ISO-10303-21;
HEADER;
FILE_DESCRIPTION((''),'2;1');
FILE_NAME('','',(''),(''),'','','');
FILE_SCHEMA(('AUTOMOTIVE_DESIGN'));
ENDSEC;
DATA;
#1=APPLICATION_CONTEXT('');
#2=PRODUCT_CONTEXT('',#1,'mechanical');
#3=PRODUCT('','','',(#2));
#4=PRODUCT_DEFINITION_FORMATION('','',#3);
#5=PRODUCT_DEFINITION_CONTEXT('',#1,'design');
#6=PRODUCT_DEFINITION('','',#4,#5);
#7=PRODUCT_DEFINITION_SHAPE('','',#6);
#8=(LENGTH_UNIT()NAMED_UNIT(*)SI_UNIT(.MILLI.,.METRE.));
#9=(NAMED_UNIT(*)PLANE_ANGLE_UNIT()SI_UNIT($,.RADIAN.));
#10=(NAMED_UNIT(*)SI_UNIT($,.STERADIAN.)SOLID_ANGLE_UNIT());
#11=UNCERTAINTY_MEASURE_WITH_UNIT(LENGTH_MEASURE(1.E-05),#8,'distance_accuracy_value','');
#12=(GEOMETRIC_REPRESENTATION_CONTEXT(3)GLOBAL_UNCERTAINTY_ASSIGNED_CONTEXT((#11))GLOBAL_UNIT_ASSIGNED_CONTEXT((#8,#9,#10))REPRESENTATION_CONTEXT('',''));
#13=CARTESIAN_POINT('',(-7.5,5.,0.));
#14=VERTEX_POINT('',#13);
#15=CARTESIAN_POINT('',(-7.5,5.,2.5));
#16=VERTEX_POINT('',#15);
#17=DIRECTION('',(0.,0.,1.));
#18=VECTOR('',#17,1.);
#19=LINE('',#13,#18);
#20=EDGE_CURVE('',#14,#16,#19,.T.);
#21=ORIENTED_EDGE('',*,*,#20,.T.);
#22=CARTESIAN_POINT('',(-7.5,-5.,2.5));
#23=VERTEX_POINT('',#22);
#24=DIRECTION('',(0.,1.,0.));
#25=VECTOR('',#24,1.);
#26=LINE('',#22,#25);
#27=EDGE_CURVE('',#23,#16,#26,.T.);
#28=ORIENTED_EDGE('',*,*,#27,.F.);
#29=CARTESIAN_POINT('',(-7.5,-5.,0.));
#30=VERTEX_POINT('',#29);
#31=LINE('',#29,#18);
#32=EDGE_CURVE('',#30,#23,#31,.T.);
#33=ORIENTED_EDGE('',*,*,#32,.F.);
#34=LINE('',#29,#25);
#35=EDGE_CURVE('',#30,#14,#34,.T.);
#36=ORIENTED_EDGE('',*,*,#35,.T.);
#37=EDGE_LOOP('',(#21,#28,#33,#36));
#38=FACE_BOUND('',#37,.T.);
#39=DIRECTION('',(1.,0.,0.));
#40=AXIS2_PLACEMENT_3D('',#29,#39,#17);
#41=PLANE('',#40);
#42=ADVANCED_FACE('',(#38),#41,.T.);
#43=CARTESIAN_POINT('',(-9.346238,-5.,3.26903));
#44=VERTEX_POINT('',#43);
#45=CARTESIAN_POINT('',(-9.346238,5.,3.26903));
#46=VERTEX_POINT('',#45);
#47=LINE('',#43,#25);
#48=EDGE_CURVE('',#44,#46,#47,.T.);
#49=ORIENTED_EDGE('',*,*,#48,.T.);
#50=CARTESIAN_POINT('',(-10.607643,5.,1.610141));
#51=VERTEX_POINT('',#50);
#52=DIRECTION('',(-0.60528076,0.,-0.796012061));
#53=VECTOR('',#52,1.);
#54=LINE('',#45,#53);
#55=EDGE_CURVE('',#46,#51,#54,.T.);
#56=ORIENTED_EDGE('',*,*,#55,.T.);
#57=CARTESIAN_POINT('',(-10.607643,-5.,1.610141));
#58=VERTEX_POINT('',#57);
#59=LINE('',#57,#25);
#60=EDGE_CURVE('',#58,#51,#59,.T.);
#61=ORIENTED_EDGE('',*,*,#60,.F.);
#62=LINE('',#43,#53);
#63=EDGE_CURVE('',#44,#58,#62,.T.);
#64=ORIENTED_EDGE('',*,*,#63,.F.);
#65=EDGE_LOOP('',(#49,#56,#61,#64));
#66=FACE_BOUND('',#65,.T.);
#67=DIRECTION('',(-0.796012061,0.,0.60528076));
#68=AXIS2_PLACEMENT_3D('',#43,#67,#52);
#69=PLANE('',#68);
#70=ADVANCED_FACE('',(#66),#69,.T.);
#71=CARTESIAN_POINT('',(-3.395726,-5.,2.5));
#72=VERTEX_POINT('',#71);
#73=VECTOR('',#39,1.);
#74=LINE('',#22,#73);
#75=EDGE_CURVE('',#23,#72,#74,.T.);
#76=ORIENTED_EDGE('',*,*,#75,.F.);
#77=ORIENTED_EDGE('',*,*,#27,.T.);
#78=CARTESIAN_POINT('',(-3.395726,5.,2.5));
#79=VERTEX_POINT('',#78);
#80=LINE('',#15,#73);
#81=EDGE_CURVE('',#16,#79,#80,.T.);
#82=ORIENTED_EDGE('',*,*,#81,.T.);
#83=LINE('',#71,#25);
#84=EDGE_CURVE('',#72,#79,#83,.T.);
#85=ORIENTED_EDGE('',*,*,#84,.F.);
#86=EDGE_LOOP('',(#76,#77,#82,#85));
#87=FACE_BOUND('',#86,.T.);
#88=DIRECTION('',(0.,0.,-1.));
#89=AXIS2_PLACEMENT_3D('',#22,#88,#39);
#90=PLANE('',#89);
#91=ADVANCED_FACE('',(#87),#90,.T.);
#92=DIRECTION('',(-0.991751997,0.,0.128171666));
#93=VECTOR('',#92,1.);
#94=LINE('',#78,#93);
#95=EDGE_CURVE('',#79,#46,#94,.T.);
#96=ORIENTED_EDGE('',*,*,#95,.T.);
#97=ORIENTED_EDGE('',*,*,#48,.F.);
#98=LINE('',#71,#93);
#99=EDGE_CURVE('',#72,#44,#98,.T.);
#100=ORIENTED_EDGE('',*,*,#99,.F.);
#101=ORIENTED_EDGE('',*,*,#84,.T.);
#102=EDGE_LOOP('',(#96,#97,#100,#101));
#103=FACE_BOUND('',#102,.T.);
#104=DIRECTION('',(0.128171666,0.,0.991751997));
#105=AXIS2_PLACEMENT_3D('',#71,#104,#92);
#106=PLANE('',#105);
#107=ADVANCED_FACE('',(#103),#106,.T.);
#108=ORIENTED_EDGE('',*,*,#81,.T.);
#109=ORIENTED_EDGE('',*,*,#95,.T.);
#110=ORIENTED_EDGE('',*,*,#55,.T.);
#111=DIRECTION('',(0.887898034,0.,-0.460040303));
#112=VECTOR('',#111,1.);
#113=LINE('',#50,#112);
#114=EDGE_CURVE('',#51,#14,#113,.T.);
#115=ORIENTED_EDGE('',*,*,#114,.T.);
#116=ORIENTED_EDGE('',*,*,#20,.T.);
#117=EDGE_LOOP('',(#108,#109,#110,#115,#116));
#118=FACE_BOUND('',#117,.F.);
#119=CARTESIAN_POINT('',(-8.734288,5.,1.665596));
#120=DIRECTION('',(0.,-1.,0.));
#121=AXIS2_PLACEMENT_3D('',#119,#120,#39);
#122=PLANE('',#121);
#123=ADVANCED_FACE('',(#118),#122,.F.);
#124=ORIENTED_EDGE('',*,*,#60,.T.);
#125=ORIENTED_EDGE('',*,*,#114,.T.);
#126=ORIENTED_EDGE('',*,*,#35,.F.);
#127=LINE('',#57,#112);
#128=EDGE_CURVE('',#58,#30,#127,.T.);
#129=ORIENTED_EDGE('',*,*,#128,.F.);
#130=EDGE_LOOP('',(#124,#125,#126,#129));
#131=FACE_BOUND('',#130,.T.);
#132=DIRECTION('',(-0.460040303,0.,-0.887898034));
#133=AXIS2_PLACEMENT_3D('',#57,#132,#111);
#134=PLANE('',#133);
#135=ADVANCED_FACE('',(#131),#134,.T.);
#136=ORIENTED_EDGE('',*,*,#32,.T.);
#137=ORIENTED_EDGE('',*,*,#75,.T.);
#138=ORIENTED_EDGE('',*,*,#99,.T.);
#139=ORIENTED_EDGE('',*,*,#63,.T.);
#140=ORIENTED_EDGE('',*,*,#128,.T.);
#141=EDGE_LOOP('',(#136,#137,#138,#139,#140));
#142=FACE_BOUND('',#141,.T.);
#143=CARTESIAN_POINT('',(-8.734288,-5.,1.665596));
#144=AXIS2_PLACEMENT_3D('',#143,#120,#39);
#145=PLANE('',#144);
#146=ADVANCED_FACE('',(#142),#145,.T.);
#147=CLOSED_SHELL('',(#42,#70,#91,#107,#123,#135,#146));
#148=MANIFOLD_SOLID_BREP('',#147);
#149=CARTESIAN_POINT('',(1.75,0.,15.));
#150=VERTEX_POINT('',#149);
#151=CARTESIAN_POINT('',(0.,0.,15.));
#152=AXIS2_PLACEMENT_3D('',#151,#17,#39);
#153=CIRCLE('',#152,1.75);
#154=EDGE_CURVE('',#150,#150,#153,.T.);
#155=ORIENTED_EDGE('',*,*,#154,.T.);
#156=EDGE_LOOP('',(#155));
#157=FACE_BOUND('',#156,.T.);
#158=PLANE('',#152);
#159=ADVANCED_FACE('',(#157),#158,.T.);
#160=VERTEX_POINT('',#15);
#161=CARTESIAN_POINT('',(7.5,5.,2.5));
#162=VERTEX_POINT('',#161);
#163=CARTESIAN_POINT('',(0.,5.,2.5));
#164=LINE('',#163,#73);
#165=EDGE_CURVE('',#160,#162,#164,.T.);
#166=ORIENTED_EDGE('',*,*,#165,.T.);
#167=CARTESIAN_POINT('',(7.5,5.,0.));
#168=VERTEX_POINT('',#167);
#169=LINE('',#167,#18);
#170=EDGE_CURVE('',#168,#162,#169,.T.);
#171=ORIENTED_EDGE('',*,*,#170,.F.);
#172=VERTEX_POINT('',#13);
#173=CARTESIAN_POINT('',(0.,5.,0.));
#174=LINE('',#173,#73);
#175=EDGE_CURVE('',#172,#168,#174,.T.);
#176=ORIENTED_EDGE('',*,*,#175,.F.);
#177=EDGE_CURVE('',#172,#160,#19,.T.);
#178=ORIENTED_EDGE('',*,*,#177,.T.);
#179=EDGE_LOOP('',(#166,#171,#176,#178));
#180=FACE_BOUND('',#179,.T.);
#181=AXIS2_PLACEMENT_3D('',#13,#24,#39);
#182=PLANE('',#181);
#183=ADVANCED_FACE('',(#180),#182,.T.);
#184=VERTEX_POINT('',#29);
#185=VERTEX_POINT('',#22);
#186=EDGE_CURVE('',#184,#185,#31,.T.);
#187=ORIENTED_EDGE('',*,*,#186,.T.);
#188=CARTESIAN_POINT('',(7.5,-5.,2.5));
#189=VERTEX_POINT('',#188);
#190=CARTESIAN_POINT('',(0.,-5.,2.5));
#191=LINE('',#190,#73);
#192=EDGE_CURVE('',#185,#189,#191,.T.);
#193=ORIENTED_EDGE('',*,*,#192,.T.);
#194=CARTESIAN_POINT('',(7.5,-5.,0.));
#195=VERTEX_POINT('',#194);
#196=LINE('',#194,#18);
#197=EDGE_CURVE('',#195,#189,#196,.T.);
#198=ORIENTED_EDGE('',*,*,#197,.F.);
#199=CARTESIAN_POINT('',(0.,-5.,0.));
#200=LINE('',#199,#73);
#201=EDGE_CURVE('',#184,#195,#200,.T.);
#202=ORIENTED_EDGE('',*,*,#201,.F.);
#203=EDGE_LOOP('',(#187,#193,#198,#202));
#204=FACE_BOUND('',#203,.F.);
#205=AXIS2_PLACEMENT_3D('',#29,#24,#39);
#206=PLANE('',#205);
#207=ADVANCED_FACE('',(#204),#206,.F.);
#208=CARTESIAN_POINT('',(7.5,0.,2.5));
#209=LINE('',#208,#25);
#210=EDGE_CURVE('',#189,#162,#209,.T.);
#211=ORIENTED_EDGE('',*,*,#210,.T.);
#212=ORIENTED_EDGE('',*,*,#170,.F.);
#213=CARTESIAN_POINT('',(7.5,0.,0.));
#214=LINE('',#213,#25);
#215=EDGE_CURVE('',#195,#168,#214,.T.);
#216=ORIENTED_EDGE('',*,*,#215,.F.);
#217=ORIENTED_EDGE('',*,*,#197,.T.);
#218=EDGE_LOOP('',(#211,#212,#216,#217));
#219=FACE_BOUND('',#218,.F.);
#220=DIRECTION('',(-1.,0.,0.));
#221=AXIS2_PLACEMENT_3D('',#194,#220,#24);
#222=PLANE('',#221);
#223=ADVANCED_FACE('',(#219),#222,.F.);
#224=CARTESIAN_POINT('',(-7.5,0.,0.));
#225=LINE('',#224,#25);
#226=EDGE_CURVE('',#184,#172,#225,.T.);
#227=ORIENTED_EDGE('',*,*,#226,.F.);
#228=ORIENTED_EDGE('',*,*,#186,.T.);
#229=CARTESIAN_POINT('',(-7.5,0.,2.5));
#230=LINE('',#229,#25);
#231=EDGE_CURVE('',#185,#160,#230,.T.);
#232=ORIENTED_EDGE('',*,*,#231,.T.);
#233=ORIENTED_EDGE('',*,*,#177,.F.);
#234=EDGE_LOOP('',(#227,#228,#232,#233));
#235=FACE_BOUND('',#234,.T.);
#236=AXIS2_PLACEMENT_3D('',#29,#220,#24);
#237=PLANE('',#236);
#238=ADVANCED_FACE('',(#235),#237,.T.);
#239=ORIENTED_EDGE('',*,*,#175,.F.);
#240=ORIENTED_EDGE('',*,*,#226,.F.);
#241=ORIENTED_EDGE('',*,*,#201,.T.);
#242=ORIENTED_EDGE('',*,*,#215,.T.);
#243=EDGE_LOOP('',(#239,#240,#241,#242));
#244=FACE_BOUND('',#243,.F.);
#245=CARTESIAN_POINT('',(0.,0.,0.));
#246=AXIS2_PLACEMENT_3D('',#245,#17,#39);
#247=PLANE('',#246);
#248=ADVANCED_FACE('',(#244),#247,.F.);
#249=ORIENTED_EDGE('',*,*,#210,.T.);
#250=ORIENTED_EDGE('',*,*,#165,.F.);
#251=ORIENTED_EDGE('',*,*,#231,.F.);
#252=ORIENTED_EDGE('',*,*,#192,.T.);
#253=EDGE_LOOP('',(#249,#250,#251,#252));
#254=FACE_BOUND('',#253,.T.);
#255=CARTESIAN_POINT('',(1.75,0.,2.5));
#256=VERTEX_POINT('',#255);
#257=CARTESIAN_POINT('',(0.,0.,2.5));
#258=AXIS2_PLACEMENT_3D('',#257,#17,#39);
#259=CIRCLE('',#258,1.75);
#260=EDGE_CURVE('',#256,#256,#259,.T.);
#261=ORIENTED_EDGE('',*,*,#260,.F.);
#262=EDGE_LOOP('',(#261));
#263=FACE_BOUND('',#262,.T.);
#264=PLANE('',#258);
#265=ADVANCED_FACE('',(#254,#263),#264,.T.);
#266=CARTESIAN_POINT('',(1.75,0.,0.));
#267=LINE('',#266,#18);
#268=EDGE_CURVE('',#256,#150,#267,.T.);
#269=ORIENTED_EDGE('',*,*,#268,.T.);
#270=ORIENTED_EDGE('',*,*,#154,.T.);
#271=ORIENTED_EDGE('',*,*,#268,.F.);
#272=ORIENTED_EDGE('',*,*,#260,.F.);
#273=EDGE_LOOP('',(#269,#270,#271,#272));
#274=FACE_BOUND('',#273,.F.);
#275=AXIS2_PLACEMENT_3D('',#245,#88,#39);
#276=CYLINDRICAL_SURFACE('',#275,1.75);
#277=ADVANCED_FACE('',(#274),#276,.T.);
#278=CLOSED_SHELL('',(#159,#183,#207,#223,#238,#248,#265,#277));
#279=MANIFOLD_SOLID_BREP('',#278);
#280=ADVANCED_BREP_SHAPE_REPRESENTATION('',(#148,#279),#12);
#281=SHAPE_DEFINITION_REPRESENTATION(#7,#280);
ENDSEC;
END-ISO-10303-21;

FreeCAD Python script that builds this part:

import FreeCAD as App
import Part
import Sketcher
from FreeCAD import Vector


def add_polygon(sketch, points):
    """Adds a closed chain of lines whose ends are joined by coincident constraints."""
    first, n = sketch.GeometryCount, len(points)
    for a, b in zip(points, points[1:] + points[:1]):
        sketch.addGeometry(Part.LineSegment(App.Vector(*a, 0), App.Vector(*b, 0)), False)
    for i in range(n):
        sketch.addConstraint(Sketcher.Constraint("Coincident", first + i, 2, first + (i + 1) % n, 1))

doc = App.newDocument("Part")
body = doc.addObject("PartDesign::Body", "Body")

sketch1 = body.newObject("Sketcher::SketchObject", "Sketch")
sketch1.AttachmentSupport = (doc.getObject("XY_Plane"), [""])
sketch1.MapMode = "FlatFace"
sketch1.addGeometry(Part.Circle(Vector(0, 0, 0), Vector(0, 0, 1), 1.75), False)
sketch1.addConstraint([
    Sketcher.Constraint("Coincident", 0, 3, -1, 1),
    Sketcher.Constraint("Diameter", 0, 3.5),
])
pad1 = body.newObject("PartDesign::Pad", "Pad")
pad1.Profile = sketch1
pad1.Length = 15

sketch2 = body.newObject("Sketcher::SketchObject", "Sketch001")
sketch2.AttachmentSupport = (doc.getObject("XY_Plane"), [""])
sketch2.MapMode = "FlatFace"
add_polygon(sketch2, [(-7.5, 5), (-7.5, -5), (7.5, -5), (7.5, 5)])
sketch2.addGeometry(Part.Circle(Vector(0, 0, 0), Vector(0, 0, 1), 1.75), False)
sketch2.addConstraint([
    Sketcher.Constraint("Vertical", 0),
    Sketcher.Constraint("Horizontal", 1),
    Sketcher.Constraint("Vertical", 2),
    Sketcher.Constraint("Horizontal", 3),
    Sketcher.Constraint("Coincident", 4, 3, -1, 1),
    Sketcher.Constraint("Symmetric", 0, 2, 2, 2, -1, 1),
    Sketcher.Constraint("Diameter", 4, 3.5),
    Sketcher.Constraint("DistanceX", 1, 1, 1, 2, 15.0),
    Sketcher.Constraint("DistanceY", 0, 2, 0, 1, 10.0),
])
pad2 = body.newObject("PartDesign::Pad", "Pad001")
pad2.Profile = sketch2
pad2.Length = 2.5
body2 = doc.addObject("PartDesign::Body", "Body001")

sketch3 = body2.newObject("Sketcher::SketchObject", "Sketch002")
sketch3.AttachmentSupport = (doc.getObject("XZ_Plane001"), [""])
sketch3.MapMode = "FlatFace"
sketch3.AttachmentOffset = App.Placement(Vector(0, 0, 5), App.Rotation())
add_polygon(sketch3, [(-10.607643, 1.610141), (-7.5, 0), (-7.5, 2.5), (-3.395726, 2.5), (-9.346238, 3.26903)])
sketch3.addConstraint([
    Sketcher.Constraint("Vertical", 1),
    Sketcher.Constraint("Horizontal", 2),
    Sketcher.Constraint("PointOnObject", 0, 2, -1),
    Sketcher.Constraint("Distance", 3, 6.0),
    Sketcher.Constraint("DistanceY", 1, 1, 1, 2, 2.5),
    Sketcher.Constraint("Distance", 0, 3.5),
    Sketcher.Constraint("DistanceX", 0, 2, -1, 1, 7.5),
    Sketcher.Constraint("Distance", 4, 2.084),
    Sketcher.Constraint("DistanceX", 2, 1, 2, 2, 4.104274),
    Sketcher.Constraint("DistanceY", -1, 1, 3, 2, 3.26903),
])
pad3 = body2.newObject("PartDesign::Pad", "Pad002")
pad3.Profile = sketch3
pad3.Length = 10
pad3.Reversed = True

doc.recompute()
